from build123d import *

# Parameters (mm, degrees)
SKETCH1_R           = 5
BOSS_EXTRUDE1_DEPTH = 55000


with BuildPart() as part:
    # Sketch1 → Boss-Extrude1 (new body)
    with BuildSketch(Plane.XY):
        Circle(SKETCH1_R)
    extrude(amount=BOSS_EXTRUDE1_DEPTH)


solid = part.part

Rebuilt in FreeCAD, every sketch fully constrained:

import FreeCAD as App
import Part
import Sketcher

doc = App.newDocument("Part")
params = doc.addObject("Spreadsheet::Sheet", "Params")
for row, (alias, value) in enumerate([
    ("sketch1_diameter", "10 mm"),
    ("pad1_length", "55000 mm"),
], start=1):
    params.set(f"A{row}", alias)
    params.set(f"B{row}", "=" + value)
    params.setAlias(f"B{row}", alias)

body = doc.addObject("PartDesign::Body", "Body")

sketch1 = doc.addObject("Sketcher::SketchObject", "Sketch")
body.addObject(sketch1)
sketch1.AttachmentSupport = (doc.XY_Plane, [""])
sketch1.MapMode = "FlatFace"
sketch1.addGeometry(Part.Circle(App.Vector(0, 0, 0), App.Vector(0, 0, 1), 5), False)
sketch1.addConstraint([
    Sketcher.Constraint("Coincident", 0, 3, -1, 1),
    Sketcher.Constraint("Diameter", 0, 10.0),
])
sketch1.setExpression("Constraints[1]", "Params.sketch1_diameter")
pad1 = doc.addObject("PartDesign::Pad", "Pad")
body.addObject(pad1)
pad1.Profile = sketch1
pad1.setExpression("Length", "Params.pad1_length")

doc.recompute()
